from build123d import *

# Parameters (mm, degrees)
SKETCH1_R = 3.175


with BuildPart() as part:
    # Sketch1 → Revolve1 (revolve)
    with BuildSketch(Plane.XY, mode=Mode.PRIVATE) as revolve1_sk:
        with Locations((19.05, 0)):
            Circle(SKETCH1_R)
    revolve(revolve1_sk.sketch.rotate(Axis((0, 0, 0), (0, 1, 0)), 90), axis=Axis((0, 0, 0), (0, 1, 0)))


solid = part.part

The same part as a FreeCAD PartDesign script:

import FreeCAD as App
import Part
import Sketcher
Q = App.Units.Quantity

doc = App.newDocument("Part")
body = doc.addObject("PartDesign::Body", "Body")

# Sketch on XY plane
sketch1 = doc.addObject("Sketcher::SketchObject", "Sketch")
body.addObject(sketch1)
sketch1.AttachmentSupport = (doc.XY_Plane, [""])
sketch1.MapMode = "FlatFace"
sketch1.addGeometry(Part.Circle(App.Vector(19.1, 0, 0), App.Vector(0, 0, 1), 3.2), False)
sketch1.addConstraint([
    Sketcher.Constraint("PointOnObject", 0, 3, -1),
    Sketcher.Constraint("Diameter", 0, Q("0.25 in")),
    Sketcher.Constraint("DistanceX", -1, 1, 0, 3, Q("0.75 in")),
])
revolution = doc.addObject("PartDesign::Revolution", "Revolution")
body.addObject(revolution)
revolution.Profile = sketch1
revolution.ReferenceAxis = (sketch1, ["V_Axis"])
revolution.Angle = 360

doc.recompute()
